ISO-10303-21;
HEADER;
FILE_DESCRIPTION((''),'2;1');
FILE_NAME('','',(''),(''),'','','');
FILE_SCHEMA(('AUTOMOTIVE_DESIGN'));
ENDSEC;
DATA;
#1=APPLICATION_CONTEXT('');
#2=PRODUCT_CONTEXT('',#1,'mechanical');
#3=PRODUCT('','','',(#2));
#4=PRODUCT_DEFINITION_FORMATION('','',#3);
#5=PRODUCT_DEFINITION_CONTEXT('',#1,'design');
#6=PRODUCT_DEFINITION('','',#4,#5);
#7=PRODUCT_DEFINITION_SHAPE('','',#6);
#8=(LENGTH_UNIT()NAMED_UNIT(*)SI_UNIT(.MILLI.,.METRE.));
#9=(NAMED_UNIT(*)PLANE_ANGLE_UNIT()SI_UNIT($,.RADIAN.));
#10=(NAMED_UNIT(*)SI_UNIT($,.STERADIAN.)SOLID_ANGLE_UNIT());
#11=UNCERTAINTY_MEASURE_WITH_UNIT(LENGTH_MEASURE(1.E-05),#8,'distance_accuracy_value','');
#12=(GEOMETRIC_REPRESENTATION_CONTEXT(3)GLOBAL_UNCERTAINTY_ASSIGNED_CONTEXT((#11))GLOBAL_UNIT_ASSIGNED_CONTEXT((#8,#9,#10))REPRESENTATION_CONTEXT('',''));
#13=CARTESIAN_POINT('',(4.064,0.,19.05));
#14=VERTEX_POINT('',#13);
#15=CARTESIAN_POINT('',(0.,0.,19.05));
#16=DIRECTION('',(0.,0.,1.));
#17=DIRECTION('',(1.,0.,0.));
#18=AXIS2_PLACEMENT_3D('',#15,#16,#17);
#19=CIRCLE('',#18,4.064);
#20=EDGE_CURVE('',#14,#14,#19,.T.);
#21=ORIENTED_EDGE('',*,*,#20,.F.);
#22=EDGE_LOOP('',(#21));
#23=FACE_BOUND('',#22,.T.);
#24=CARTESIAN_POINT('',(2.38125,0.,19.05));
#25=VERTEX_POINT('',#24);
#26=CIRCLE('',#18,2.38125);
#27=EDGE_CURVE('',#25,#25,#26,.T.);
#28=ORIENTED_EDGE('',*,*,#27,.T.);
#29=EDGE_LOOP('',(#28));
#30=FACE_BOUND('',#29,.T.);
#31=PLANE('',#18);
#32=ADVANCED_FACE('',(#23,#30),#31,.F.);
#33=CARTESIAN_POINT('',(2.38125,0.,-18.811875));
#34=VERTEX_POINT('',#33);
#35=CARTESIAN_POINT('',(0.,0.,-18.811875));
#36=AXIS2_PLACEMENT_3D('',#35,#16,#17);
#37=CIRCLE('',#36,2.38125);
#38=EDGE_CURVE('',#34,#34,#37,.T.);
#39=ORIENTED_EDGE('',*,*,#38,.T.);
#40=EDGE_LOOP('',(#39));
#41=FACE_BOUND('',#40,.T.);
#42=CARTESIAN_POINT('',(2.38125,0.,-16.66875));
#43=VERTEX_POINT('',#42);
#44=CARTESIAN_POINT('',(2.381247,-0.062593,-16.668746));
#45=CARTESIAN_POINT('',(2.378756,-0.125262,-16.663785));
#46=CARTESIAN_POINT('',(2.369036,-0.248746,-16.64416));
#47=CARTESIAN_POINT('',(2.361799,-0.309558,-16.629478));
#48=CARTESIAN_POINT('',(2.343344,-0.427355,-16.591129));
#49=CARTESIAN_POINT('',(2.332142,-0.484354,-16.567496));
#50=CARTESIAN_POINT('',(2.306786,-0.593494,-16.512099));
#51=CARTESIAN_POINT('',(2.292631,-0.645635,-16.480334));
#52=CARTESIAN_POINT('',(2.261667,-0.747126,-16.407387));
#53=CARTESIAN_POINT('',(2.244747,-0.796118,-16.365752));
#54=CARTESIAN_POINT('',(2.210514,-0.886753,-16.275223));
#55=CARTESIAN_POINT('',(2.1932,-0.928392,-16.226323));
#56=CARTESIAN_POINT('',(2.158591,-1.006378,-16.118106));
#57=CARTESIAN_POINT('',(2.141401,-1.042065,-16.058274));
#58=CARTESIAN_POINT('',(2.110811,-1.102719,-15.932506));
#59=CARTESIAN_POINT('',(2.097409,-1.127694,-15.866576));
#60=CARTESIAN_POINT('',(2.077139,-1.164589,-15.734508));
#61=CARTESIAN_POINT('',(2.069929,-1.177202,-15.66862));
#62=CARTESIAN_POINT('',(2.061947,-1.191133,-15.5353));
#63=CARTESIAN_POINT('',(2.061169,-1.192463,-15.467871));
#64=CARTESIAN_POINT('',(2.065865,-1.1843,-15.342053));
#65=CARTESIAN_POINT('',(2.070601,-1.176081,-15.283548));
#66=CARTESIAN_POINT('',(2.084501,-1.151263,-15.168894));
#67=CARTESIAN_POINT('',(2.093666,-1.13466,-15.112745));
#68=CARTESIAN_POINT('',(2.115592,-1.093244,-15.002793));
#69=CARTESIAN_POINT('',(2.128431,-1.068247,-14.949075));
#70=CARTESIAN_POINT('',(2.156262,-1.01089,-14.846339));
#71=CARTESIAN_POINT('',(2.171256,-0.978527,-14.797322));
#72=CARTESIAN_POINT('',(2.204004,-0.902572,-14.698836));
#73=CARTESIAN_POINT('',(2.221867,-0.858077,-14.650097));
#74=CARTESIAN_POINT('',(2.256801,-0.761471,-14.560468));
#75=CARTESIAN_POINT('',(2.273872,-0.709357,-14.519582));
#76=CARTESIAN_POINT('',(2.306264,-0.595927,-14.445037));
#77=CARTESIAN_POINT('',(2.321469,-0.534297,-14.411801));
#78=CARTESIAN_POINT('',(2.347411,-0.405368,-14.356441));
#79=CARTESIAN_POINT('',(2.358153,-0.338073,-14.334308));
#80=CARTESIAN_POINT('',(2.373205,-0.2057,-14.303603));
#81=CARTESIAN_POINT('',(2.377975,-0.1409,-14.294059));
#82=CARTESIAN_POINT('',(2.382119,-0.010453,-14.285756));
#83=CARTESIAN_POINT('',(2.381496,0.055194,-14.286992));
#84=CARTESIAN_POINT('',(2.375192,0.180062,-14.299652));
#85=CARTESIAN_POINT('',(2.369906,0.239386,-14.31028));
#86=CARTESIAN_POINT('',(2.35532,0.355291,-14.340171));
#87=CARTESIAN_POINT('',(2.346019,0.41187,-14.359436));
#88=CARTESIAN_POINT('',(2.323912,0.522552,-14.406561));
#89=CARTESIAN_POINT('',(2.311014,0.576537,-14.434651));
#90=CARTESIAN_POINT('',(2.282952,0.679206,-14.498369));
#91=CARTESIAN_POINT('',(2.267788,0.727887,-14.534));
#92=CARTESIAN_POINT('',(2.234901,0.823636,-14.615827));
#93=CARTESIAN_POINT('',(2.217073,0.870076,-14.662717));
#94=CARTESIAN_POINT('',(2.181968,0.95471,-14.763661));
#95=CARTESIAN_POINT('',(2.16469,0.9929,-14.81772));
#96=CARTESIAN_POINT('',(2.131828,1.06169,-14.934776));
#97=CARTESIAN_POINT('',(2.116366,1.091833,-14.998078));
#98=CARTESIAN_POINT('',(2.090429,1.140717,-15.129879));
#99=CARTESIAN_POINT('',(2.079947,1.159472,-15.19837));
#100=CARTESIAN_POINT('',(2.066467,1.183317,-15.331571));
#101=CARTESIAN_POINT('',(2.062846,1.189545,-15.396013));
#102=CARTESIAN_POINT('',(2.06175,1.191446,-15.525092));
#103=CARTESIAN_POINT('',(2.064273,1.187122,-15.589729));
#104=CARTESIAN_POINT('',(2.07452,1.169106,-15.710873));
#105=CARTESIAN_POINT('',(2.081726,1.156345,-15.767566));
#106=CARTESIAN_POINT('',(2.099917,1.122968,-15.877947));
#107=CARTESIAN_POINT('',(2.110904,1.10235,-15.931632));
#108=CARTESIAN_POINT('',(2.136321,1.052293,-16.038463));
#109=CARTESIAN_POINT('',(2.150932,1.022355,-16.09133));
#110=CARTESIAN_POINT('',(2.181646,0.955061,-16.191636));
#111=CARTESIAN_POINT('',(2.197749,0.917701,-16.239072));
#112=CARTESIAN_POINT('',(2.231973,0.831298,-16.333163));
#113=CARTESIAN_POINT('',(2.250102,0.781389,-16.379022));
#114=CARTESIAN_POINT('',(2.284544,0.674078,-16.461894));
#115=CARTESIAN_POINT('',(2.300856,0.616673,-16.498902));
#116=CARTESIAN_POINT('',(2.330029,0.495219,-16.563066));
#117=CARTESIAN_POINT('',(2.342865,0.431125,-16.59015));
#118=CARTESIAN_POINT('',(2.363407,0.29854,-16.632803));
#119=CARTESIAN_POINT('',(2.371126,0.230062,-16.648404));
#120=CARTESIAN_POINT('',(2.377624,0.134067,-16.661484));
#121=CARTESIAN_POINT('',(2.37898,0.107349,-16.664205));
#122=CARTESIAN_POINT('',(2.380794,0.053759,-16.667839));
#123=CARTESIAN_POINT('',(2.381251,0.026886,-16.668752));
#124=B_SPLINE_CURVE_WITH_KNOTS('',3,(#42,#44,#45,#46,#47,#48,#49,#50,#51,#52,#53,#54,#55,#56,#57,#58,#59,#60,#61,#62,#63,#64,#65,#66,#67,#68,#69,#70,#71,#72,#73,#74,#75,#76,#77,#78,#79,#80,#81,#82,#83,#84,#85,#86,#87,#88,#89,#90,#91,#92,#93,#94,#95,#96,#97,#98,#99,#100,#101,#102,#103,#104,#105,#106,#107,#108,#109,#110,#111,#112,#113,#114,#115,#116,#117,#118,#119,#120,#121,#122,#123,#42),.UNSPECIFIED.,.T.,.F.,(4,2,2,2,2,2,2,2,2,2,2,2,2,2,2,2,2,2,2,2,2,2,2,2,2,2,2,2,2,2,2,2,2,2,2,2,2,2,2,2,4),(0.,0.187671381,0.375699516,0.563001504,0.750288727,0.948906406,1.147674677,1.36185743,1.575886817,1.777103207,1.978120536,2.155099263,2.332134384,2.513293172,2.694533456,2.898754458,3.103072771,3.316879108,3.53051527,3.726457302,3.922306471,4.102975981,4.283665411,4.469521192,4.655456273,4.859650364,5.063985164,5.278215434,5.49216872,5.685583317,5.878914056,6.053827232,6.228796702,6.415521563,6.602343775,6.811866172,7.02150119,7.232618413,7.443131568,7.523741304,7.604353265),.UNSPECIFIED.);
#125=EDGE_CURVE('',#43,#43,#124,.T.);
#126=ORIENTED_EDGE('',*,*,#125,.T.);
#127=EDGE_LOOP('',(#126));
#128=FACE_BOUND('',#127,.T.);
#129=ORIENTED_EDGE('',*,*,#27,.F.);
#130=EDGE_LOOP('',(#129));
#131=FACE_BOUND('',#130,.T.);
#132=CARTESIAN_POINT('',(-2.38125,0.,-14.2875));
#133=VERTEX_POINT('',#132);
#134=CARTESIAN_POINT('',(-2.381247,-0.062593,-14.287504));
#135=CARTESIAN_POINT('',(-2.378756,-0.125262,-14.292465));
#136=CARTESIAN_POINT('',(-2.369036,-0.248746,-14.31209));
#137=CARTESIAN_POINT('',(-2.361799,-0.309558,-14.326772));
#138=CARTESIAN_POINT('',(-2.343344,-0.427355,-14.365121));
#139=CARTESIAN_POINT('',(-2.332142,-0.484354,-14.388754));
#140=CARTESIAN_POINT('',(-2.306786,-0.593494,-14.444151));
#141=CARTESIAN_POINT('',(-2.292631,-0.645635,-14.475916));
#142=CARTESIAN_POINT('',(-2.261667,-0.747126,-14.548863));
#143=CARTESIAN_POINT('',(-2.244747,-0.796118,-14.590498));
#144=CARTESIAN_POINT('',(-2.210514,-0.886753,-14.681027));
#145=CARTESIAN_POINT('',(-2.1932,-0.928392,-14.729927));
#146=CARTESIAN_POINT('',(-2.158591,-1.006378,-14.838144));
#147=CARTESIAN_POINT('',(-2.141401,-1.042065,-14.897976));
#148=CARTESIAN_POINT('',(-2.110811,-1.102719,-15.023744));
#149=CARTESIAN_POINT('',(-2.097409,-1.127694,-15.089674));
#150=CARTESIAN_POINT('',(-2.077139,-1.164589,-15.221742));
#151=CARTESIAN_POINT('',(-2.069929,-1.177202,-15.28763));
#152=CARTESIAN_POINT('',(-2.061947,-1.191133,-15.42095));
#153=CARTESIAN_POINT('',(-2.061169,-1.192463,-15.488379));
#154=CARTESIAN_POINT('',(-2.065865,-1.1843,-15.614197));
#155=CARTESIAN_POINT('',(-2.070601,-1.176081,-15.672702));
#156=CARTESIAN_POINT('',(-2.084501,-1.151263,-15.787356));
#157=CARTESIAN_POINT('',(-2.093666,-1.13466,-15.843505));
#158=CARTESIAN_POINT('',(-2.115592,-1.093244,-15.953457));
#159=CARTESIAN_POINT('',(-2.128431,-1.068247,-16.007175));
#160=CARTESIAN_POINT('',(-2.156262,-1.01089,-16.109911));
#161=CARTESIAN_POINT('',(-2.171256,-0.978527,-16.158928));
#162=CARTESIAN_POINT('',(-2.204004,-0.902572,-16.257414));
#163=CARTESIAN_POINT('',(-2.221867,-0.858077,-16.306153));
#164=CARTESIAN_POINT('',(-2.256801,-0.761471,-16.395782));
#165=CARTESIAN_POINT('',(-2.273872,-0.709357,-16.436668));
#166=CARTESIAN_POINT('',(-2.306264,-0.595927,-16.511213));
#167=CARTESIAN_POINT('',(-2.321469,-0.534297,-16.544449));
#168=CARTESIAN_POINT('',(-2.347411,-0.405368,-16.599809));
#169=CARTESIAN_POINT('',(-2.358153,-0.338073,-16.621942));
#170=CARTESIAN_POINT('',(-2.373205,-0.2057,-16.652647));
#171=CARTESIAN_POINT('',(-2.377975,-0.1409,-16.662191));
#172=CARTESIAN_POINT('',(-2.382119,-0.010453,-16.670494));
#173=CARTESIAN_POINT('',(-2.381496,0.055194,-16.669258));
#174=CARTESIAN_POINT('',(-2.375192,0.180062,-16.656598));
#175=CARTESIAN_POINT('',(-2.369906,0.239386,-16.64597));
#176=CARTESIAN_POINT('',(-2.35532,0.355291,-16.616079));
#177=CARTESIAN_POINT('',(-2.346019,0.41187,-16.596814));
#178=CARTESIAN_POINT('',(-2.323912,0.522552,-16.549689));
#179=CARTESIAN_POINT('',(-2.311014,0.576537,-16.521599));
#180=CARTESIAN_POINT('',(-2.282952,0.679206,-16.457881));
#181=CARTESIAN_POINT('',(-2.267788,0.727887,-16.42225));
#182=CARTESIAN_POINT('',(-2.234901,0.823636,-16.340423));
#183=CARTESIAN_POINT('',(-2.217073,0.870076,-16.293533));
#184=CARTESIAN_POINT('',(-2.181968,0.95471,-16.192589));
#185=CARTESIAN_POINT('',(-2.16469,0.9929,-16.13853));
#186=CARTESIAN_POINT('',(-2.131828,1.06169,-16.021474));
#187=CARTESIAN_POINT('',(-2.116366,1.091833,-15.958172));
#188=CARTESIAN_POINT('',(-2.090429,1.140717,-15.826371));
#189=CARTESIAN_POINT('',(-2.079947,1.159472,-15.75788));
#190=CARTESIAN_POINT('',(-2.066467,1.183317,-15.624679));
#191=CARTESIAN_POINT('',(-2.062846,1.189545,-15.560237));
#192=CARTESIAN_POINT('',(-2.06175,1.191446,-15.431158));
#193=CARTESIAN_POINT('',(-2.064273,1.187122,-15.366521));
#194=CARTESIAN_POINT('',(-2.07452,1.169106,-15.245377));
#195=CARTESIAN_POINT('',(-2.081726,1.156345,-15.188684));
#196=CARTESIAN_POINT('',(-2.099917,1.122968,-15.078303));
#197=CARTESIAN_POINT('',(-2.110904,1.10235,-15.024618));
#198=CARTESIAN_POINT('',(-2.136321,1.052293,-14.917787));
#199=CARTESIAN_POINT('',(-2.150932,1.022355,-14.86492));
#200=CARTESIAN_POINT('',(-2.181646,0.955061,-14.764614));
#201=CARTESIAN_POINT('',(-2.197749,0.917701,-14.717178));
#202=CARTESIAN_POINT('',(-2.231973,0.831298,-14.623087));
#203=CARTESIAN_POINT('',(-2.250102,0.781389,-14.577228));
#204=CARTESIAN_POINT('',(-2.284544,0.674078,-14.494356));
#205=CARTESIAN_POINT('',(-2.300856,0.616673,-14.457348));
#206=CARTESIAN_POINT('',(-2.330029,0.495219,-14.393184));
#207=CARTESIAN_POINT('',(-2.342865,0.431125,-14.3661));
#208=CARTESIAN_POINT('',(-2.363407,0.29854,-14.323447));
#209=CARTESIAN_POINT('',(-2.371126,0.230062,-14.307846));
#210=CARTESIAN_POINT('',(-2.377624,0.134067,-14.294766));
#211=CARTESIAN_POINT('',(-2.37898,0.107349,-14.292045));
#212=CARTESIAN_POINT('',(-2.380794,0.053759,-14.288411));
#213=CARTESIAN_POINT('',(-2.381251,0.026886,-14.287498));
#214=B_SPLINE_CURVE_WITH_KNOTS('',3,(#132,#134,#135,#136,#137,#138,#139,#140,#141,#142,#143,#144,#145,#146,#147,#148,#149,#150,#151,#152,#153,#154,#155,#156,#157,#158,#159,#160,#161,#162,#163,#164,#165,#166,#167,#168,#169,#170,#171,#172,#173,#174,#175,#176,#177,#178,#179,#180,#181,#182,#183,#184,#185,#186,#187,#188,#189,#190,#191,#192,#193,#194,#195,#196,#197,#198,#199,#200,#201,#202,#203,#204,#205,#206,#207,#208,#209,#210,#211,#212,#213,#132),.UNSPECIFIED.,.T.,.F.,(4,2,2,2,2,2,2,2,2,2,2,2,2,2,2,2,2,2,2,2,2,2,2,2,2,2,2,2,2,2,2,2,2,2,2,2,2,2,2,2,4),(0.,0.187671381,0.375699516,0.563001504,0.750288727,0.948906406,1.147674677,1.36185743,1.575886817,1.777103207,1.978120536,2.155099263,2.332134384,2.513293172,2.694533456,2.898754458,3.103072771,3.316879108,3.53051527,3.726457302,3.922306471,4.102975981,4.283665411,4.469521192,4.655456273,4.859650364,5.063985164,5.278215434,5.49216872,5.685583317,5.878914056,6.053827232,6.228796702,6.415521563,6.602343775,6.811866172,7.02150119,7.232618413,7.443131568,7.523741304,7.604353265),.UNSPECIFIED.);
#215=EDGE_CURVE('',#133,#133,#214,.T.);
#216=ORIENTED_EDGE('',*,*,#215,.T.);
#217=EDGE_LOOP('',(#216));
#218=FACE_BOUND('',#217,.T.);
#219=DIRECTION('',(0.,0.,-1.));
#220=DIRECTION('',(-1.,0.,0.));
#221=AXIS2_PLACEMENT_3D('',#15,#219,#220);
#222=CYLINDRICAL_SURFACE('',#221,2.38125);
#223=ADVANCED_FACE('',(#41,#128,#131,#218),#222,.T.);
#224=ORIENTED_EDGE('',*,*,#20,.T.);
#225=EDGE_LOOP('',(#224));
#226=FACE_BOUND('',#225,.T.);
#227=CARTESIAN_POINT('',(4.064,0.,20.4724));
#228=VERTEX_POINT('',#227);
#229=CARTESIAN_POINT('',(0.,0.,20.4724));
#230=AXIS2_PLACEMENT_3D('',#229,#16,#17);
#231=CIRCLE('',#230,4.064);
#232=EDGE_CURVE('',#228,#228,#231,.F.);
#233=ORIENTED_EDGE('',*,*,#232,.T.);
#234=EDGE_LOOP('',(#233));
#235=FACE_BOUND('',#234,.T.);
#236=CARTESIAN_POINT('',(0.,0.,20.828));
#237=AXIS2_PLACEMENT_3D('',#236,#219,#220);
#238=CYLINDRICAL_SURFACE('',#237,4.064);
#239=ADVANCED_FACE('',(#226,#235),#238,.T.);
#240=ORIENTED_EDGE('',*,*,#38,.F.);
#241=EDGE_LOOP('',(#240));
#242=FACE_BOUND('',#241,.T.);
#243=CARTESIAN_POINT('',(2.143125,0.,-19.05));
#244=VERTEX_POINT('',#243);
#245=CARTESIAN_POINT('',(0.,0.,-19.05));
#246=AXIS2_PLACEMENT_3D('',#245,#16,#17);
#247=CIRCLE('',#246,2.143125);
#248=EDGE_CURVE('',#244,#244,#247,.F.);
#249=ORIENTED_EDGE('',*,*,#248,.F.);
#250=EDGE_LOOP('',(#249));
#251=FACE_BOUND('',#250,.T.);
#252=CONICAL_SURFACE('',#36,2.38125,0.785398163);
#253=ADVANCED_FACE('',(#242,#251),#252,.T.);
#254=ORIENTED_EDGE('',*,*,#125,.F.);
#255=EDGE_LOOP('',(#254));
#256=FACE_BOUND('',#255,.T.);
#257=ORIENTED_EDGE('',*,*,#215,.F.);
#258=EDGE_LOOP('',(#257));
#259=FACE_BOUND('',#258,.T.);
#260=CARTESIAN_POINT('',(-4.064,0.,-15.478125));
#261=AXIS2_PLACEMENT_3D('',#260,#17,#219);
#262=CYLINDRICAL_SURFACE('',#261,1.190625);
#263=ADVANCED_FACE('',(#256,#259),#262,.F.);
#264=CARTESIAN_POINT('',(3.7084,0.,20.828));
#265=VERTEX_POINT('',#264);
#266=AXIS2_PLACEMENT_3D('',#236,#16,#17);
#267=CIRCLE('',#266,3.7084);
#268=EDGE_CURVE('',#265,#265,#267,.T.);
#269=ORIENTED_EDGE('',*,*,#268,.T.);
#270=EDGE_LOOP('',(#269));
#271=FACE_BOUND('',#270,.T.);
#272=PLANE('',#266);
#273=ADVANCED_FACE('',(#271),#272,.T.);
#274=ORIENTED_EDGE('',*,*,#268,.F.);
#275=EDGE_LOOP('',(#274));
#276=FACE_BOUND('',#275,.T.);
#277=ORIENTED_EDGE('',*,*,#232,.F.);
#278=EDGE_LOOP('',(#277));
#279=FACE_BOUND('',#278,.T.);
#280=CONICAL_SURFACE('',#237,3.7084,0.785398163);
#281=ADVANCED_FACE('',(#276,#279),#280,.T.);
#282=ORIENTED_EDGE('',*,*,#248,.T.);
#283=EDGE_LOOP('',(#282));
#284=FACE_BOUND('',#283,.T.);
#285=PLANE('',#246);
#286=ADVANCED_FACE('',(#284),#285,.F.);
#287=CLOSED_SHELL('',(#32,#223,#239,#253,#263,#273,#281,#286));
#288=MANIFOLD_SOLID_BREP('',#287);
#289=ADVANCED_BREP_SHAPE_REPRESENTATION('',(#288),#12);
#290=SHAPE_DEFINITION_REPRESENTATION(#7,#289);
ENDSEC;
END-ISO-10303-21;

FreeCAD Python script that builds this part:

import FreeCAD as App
import Part
import Sketcher

V = App.Vector
Q = App.Units.Quantity


def edges_at(feature, points):
    """Names of the edges that pass closest to the given points."""
    edges = feature.Shape.Edges
    near = lambda p: min(range(len(edges)), key=lambda i: edges[i].distToShape(Part.Vertex(*p))[0])
    return sorted({f"Edge{near(p) + 1}" for p in points})

doc = App.newDocument("Part")
body = doc.addObject("PartDesign::Body", "Body")

# Sketch on XY plane
sketch1 = body.newObject("Sketcher::SketchObject", "Sketch")
sketch1.AttachmentSupport = (doc.getObject("XY_Plane"), [""])
sketch1.MapMode = "FlatFace"
sketch1.addGeometry(Part.Circle(V(0, 0, 0), V(0, 0, 1), 2.38125), False)
sketch1.addConstraint([
    Sketcher.Constraint("Coincident", 0, 3, -1, 1),
    Sketcher.Constraint("Diameter", 0, Q("0.1875 in")),
])
pad1 = body.newObject("PartDesign::Pad", "Pad")
pad1.Profile = sketch1
pad1.Length = Q("1.5 in")
pad1.Midplane = True

# Sketch on XY plane
sketch2 = body.newObject("Sketcher::SketchObject", "Sketch001")
sketch2.AttachmentSupport = (doc.getObject("XY_Plane"), [""])
sketch2.MapMode = "FlatFace"
sketch2.AttachmentOffset = App.Placement(V(0, 0, 0.75 * 25.4), App.Rotation())
sketch2.addGeometry(Part.Circle(V(0, 0, 0), V(0, 0, 1), 4.064), False)
sketch2.addConstraint([
    Sketcher.Constraint("Coincident", 0, 3, -1, 1),
    Sketcher.Constraint("Diameter", 0, Q("0.32 in")),
])
pad2 = body.newObject("PartDesign::Pad", "Pad001")
pad2.Profile = sketch2
pad2.Length = Q("0.07 in")
doc.recompute()

chamfer = body.newObject("PartDesign::Chamfer", "Chamfer")
chamfer.Base = (pad2, edges_at(pad2, [(-4.064, 0, 20.828)]))
chamfer.Size = Q("0.014 in")

# Sketch on YZ plane
sketch3 = body.newObject("Sketcher::SketchObject", "Sketch002")
sketch3.AttachmentSupport = (doc.getObject("YZ_Plane"), [""])
sketch3.MapMode = "FlatFace"
sketch3.addGeometry(Part.Circle(V(0, -15.478125, 0), V(0, 0, 1), 1.190625), False)
sketch3.addConstraint([
    Sketcher.Constraint("PointOnObject", 0, 3, -2),
    Sketcher.Constraint("Diameter", 0, Q("0.09375 in")),
    Sketcher.Constraint("DistanceY", 0, 3, -1, 1, Q("0.609375 in")),
])
pocket1 = body.newObject("PartDesign::Pocket", "Pocket")
pocket1.Profile = sketch3
pocket1.Type = "ThroughAll"
pocket1.Midplane = True
doc.recompute()

chamfer2 = body.newObject("PartDesign::Chamfer", "Chamfer001")
chamfer2.Base = (pocket1, edges_at(pocket1, [(2.381, 0, -19.05)]))
chamfer2.Size = 0.238125

doc.recompute()
